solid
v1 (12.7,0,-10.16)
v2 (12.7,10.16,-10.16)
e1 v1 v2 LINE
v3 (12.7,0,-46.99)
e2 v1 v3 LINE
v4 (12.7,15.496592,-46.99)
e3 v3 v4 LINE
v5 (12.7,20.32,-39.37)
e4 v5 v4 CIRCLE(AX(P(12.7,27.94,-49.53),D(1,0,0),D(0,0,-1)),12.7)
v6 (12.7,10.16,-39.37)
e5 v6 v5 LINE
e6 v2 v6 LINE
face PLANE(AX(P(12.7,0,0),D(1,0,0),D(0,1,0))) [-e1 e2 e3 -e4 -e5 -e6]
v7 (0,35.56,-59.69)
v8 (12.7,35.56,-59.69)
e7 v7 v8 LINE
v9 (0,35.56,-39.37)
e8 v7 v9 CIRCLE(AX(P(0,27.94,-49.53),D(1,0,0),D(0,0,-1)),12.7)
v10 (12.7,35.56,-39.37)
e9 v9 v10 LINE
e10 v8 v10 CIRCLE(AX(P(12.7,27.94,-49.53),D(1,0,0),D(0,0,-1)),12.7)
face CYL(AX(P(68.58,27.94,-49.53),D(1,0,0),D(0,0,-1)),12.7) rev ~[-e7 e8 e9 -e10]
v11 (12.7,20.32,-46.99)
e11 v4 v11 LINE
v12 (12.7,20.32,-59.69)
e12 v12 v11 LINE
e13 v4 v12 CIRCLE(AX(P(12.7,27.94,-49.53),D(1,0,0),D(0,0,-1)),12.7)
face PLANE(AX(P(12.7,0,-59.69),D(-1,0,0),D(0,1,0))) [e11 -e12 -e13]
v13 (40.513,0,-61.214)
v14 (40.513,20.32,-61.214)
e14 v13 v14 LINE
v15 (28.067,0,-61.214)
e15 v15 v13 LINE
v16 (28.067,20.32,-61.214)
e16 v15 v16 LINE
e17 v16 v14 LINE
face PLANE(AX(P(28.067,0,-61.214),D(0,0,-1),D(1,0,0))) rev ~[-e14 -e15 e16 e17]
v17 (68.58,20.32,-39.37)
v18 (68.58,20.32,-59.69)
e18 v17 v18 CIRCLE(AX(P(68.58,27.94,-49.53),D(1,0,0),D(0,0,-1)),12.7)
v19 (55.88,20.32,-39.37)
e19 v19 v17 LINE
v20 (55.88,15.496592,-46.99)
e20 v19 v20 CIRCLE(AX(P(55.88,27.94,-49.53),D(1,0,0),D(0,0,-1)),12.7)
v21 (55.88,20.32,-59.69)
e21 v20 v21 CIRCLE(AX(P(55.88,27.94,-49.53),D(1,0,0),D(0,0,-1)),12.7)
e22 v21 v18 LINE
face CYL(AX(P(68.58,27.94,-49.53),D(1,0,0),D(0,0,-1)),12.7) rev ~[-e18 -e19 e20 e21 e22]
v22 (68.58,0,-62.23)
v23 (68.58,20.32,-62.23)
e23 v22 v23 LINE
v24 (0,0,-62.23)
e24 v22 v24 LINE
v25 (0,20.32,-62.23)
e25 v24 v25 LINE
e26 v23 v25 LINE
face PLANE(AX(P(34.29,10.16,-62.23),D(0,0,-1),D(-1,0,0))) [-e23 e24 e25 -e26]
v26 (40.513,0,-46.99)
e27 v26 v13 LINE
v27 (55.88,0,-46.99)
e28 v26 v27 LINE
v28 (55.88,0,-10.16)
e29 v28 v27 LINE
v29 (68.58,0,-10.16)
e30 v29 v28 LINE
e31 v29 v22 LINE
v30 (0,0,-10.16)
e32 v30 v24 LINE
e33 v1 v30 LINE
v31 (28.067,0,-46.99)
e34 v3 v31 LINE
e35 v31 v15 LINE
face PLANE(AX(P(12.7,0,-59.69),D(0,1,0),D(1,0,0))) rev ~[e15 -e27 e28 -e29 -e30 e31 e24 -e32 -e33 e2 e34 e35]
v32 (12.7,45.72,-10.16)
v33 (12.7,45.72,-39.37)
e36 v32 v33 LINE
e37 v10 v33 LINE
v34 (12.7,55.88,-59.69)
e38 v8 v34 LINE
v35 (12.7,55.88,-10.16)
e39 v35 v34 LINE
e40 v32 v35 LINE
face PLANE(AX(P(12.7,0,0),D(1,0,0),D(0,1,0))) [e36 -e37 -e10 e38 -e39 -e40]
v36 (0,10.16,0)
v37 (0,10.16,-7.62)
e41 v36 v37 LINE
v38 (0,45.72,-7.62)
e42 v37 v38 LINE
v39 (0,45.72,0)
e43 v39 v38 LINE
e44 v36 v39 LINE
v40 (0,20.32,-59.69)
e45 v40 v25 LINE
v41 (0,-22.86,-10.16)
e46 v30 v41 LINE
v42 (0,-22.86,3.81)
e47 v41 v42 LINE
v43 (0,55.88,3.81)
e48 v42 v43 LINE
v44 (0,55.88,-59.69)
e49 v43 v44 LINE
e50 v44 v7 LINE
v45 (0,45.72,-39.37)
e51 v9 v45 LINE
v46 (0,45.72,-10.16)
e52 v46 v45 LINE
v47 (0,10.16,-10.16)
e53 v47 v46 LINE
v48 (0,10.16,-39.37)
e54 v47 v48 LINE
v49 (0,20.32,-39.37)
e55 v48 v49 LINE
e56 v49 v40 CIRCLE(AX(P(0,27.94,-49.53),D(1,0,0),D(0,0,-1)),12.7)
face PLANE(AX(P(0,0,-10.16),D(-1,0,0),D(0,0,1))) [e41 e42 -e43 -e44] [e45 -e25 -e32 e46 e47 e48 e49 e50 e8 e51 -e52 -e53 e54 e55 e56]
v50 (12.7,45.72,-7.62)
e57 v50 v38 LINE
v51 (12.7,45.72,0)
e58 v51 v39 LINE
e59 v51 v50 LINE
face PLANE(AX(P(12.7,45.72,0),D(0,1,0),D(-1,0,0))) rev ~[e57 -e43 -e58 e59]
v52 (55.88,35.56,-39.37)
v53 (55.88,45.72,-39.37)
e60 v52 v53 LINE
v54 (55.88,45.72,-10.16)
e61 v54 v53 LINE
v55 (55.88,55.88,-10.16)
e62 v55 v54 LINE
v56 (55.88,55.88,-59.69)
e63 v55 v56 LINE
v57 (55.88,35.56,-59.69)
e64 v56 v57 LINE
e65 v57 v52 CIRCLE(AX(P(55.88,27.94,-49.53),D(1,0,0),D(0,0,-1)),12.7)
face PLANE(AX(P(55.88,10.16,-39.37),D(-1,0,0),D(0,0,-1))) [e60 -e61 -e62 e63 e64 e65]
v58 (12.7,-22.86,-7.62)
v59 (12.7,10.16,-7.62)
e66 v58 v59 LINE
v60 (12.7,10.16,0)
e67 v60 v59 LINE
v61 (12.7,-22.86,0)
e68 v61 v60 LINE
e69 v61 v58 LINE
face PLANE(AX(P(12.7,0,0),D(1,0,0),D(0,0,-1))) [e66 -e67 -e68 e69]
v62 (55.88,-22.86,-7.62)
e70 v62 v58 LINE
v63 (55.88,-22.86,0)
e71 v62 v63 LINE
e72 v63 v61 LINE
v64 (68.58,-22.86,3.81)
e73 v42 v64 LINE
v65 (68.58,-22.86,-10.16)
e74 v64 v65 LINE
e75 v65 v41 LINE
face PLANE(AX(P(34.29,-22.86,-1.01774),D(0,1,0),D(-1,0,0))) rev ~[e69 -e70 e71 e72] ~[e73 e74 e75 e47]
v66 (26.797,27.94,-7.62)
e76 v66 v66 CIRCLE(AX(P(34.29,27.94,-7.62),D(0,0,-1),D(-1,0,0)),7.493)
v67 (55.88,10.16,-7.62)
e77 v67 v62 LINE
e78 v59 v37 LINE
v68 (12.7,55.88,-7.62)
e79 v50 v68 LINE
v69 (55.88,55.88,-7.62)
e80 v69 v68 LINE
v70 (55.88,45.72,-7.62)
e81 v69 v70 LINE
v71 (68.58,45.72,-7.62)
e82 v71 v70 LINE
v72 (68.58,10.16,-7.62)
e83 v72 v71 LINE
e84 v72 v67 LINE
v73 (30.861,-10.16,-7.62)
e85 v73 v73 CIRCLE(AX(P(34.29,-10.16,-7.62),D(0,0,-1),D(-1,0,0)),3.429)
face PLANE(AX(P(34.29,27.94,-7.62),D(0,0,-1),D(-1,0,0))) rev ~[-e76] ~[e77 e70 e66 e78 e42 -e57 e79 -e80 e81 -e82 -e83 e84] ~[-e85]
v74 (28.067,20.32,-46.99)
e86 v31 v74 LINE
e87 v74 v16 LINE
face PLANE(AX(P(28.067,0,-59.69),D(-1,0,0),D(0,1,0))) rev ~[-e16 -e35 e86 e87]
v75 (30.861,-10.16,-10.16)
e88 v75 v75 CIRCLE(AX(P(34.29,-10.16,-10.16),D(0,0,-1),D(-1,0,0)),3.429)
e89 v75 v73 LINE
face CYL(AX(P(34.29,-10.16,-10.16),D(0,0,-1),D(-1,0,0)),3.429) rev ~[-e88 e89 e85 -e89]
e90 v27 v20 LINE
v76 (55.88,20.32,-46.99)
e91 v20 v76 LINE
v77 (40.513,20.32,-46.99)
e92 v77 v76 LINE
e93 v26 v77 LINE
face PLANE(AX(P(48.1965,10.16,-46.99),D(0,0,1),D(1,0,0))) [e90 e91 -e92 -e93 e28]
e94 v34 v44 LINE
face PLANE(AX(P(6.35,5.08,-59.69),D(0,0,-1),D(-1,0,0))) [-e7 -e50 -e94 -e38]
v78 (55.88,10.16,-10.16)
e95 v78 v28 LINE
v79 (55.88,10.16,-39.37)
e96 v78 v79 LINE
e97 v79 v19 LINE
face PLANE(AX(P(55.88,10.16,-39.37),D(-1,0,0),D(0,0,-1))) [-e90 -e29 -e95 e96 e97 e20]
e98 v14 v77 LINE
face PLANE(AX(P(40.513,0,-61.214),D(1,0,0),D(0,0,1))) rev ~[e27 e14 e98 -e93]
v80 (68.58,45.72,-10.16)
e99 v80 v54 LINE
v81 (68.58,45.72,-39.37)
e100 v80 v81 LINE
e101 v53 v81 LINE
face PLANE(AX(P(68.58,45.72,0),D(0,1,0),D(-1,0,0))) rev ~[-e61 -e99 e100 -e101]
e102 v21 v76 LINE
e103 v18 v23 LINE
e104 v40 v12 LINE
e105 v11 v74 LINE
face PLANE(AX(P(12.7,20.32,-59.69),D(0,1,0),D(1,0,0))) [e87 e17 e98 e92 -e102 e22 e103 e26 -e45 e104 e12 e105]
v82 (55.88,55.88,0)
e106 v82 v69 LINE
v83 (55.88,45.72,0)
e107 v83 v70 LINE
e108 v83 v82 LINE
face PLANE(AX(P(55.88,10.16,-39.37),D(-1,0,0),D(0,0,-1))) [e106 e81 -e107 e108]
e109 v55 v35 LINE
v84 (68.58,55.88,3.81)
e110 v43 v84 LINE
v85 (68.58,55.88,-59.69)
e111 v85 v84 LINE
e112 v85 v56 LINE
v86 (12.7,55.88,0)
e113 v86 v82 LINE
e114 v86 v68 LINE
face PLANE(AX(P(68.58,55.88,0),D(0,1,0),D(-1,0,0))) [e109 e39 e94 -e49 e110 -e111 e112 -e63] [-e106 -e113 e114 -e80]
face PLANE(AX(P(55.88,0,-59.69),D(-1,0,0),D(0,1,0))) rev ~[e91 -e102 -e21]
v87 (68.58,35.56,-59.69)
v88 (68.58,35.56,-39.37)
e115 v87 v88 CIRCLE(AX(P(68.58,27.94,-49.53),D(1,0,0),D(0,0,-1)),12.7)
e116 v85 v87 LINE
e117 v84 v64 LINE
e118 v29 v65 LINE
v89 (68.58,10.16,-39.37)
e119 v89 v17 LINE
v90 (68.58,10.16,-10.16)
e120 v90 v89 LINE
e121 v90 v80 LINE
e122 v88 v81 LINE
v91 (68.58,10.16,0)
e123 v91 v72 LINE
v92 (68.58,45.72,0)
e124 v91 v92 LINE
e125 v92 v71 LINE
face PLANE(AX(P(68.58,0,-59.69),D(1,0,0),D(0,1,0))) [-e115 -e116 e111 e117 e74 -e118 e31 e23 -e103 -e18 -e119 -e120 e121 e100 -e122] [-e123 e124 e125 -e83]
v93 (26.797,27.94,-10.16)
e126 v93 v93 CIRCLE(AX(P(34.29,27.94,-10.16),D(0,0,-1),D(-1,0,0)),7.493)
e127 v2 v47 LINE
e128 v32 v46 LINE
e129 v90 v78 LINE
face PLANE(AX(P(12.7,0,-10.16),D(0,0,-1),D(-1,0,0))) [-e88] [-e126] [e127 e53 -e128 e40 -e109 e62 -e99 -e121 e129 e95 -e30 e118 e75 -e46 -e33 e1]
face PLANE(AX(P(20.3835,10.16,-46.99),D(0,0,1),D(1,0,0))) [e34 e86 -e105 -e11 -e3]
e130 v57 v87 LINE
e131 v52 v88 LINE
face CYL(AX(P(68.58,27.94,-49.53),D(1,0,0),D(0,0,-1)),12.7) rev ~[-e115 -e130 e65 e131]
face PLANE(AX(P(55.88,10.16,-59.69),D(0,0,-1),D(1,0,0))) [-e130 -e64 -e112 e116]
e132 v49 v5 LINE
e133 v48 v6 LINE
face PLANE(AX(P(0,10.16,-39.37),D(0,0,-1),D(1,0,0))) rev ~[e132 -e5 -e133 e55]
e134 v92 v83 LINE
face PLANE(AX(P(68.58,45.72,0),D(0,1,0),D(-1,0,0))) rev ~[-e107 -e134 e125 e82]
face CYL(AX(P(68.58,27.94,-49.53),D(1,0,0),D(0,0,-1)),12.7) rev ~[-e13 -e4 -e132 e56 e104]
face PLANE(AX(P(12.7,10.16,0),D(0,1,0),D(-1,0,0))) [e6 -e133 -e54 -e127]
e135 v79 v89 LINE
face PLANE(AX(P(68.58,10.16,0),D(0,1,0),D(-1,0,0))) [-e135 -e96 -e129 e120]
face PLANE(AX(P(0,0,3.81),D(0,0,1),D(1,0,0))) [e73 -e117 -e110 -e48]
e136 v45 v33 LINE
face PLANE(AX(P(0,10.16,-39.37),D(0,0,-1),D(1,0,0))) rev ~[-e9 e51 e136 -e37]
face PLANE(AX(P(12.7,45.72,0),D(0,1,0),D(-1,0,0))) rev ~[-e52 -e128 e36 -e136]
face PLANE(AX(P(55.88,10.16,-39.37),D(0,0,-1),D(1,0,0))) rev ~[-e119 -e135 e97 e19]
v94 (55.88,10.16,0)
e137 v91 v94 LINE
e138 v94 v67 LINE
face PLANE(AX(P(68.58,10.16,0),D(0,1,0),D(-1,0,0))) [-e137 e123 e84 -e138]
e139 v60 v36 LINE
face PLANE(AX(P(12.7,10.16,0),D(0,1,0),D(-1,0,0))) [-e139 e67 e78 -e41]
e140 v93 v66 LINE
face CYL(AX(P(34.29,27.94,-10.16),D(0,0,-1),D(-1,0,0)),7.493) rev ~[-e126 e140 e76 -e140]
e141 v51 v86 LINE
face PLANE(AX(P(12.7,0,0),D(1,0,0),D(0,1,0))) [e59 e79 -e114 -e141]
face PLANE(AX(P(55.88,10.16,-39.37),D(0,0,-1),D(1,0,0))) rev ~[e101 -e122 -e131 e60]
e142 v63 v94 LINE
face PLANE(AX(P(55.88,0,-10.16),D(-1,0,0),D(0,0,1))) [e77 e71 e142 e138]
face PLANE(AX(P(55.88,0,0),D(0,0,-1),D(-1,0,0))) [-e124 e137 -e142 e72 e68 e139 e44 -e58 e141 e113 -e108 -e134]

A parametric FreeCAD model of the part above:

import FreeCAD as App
import Part
import Sketcher
from FreeCAD import Vector
Q = App.Units.Quantity


def add_polygon(sketch, points):
    """Adds a closed chain of lines whose ends are joined by coincident constraints."""
    first, n = sketch.GeometryCount, len(points)
    for a, b in zip(points, points[1:] + points[:1]):
        sketch.addGeometry(Part.LineSegment(App.Vector(*a, 0), App.Vector(*b, 0)), False)
    for i in range(n):
        sketch.addConstraint(Sketcher.Constraint("Coincident", first + i, 2, first + (i + 1) % n, 1))

doc = App.newDocument("Part")
body = doc.addObject("PartDesign::Body", "Body")

# Sketch on XY plane
sketch1 = body.newObject("Sketcher::SketchObject", "Sketch")
sketch1.AttachmentSupport = (doc.getObject("XY_Plane"), [""])
sketch1.MapMode = "FlatFace"
add_polygon(sketch1, [(0, 56), (0, 0), (69, 0), (69, 56)])  # lines 0-3
sketch1.addConstraint(Sketcher.Constraint("Vertical", 0))
sketch1.addConstraint(Sketcher.Constraint("Horizontal", 1))
sketch1.addConstraint(Sketcher.Constraint("Vertical", 2))
sketch1.addConstraint(Sketcher.Constraint("Horizontal", 3))
sketch1.addConstraint(Sketcher.Constraint("Coincident", 0, 2, -1, 1))
sketch1.addConstraint(Sketcher.Constraint("DistanceX", 1, 1, 1, 2, Q("2.7 in")))
sketch1.addConstraint(Sketcher.Constraint("DistanceY", 0, 2, 0, 1, Q("2.2 in")))
pad1 = body.newObject("PartDesign::Pad", "Pad")
pad1.Profile = sketch1
pad1.Length = Q("0.15 in")

# Sketch on XY plane
sketch2 = body.newObject("Sketcher::SketchObject", "Sketch001")
sketch2.AttachmentSupport = (doc.getObject("XY_Plane"), [""])
sketch2.MapMode = "FlatFace"
add_polygon(sketch2, [(69, 56), (69, 46), (56, 46), (56, 56)])  # lines 0-3
add_polygon(sketch2, [(13, 56), (13, 46), (0, 46), (0, 56)])  # lines 4-7
add_polygon(sketch2, [(13, 10), (13, 0), (0, 0), (0, 10)])  # lines 8-11
add_polygon(sketch2, [(69, 10), (69, 0), (56, 0), (56, 10)])  # lines 12-15
sketch2.addConstraint(Sketcher.Constraint("Vertical", 0))
sketch2.addConstraint(Sketcher.Constraint("Horizontal", 1))
sketch2.addConstraint(Sketcher.Constraint("Vertical", 2))
sketch2.addConstraint(Sketcher.Constraint("Horizontal", 3))
sketch2.addConstraint(Sketcher.Constraint("Vertical", 4))
sketch2.addConstraint(Sketcher.Constraint("Horizontal", 5))
sketch2.addConstraint(Sketcher.Constraint("Vertical", 6))
sketch2.addConstraint(Sketcher.Constraint("Horizontal", 7))
sketch2.addConstraint(Sketcher.Constraint("Vertical", 8))
sketch2.addConstraint(Sketcher.Constraint("Horizontal", 9))
sketch2.addConstraint(Sketcher.Constraint("Vertical", 10))
sketch2.addConstraint(Sketcher.Constraint("Horizontal", 11))
sketch2.addConstraint(Sketcher.Constraint("Vertical", 12))
sketch2.addConstraint(Sketcher.Constraint("Horizontal", 13))
sketch2.addConstraint(Sketcher.Constraint("Vertical", 14))
sketch2.addConstraint(Sketcher.Constraint("Horizontal", 15))
sketch2.addConstraint(Sketcher.Constraint("Coincident", 9, 2, -1, 1))
sketch2.addConstraint(Sketcher.Constraint("PointOnObject", 5, 2, -2))
sketch2.addConstraint(Sketcher.Constraint("PointOnObject", 12, 2, -1))
sketch2.addConstraint(Sketcher.Constraint("Horizontal", 1, 2, 4, 2))
sketch2.addConstraint(Sketcher.Constraint("Horizontal", 3, 2, 6, 2))
sketch2.addConstraint(Sketcher.Constraint("Horizontal", 11, 2, 14, 2))
sketch2.addConstraint(Sketcher.Constraint("Vertical", 7, 2, 8, 2))
sketch2.addConstraint(Sketcher.Constraint("Vertical", 3, 2, 12, 2))
sketch2.addConstraint(Sketcher.Constraint("Vertical", 2, 2, 13, 2))
sketch2.addConstraint(Sketcher.Constraint("Equal", 3, 5))
sketch2.addConstraint(Sketcher.Constraint("Equal", 6, 8))
sketch2.addConstraint(Sketcher.Constraint("DistanceX", 1, 2, 1, 1, Q("0.5 in")))
sketch2.addConstraint(Sketcher.Constraint("DistanceY", 0, 2, 0, 1, Q("0.4 in")))
sketch2.addConstraint(Sketcher.Constraint("DistanceX", -1, 1, 0, 2, Q("2.7 in")))
sketch2.addConstraint(Sketcher.Constraint("DistanceY", -1, 1, 0, 2, Q("1.8 in")))
pad2 = body.newObject("PartDesign::Pad", "Pad001")
pad2.Profile = sketch2
pad2.Length = Q("2.35 in")
pad2.Reversed = True

# Sketch on XZ plane
sketch3 = body.newObject("Sketcher::SketchObject", "Sketch002")
sketch3.AttachmentSupport = (doc.getObject("XZ_Plane"), [""])
sketch3.MapMode = "FlatFace"
sketch3.AttachmentOffset = App.Placement(Vector(0, 0, -0.4 * 25.4), App.Rotation())
add_polygon(sketch3, [(56, -60), (56, -39), (69, -39), (69, -60)])  # lines 0-3
add_polygon(sketch3, [(0, -60), (0, -39), (13, -39), (13, -60)])  # lines 4-7
sketch3.addConstraint(Sketcher.Constraint("Vertical", 0))
sketch3.addConstraint(Sketcher.Constraint("Horizontal", 1))
sketch3.addConstraint(Sketcher.Constraint("Vertical", 2))
sketch3.addConstraint(Sketcher.Constraint("Horizontal", 3))
sketch3.addConstraint(Sketcher.Constraint("Vertical", 4))
sketch3.addConstraint(Sketcher.Constraint("Horizontal", 5))
sketch3.addConstraint(Sketcher.Constraint("Vertical", 6))
sketch3.addConstraint(Sketcher.Constraint("Horizontal", 7))
sketch3.addConstraint(Sketcher.Constraint("PointOnObject", 4, 2, -2))
sketch3.addConstraint(Sketcher.Constraint("Horizontal", 1, 2, 4, 2))
sketch3.addConstraint(Sketcher.Constraint("Horizontal", 3, 2, 6, 2))
sketch3.addConstraint(Sketcher.Constraint("Equal", 3, 5))
sketch3.addConstraint(Sketcher.Constraint("DistanceX", 1, 1, 1, 2, Q("0.5 in")))
sketch3.addConstraint(Sketcher.Constraint("DistanceY", 0, 1, 0, 2, Q("0.8 in")))
sketch3.addConstraint(Sketcher.Constraint("DistanceX", -1, 1, 0, 2, Q("2.2 in")))
sketch3.addConstraint(Sketcher.Constraint("DistanceY", 0, 2, -1, 1, Q("1.55 in")))
pad3 = body.newObject("PartDesign::Pad", "Pad002")
pad3.Profile = sketch3
pad3.Length = Q("1.4 in")
pad3.Reversed = True

# Sketch on YZ plane
sketch4 = body.newObject("Sketcher::SketchObject", "Sketch003")
sketch4.AttachmentSupport = (doc.getObject("YZ_Plane"), [""])
sketch4.MapMode = "FlatFace"
sketch4.AttachmentOffset = App.Placement(Vector(0, 0, 2.7 * 25.4), App.Rotation())
sketch4.addGeometry(Part.Circle(Vector(28, -50, 0), Vector(0, 0, 1), 13), False)
sketch4.addConstraint(Sketcher.Constraint("Diameter", 0, Q("1 in")))
sketch4.addConstraint(Sketcher.Constraint("DistanceX", -1, 1, 0, 3, Q("1.1 in")))
sketch4.addConstraint(Sketcher.Constraint("DistanceY", 0, 3, -1, 1, Q("1.95 in")))
pocket1 = body.newObject("PartDesign::Pocket", "Pocket")
pocket1.Profile = sketch4
pocket1.Type = "ThroughAll"

# Sketch on XY plane
sketch5 = body.newObject("Sketcher::SketchObject", "Sketch004")
sketch5.AttachmentSupport = (doc.getObject("XY_Plane"), [""])
sketch5.MapMode = "FlatFace"
sketch5.AttachmentOffset = App.Placement(Vector(0, 0, -0.3 * 25.4), App.Rotation())
add_polygon(sketch5, [(69, 56), (69, 0), (56, 0), (56, -23), (13, -23), (13, 0), (0, 0), (0, 56)])  # lines 0-7
sketch5.addConstraint(Sketcher.Constraint("Vertical", 0))
sketch5.addConstraint(Sketcher.Constraint("Horizontal", 1))
sketch5.addConstraint(Sketcher.Constraint("Vertical", 2))
sketch5.addConstraint(Sketcher.Constraint("Horizontal", 3))
sketch5.addConstraint(Sketcher.Constraint("Vertical", 4))
sketch5.addConstraint(Sketcher.Constraint("Horizontal", 5))
sketch5.addConstraint(Sketcher.Constraint("Vertical", 6))
sketch5.addConstraint(Sketcher.Constraint("Horizontal", 7))
sketch5.addConstraint(Sketcher.Constraint("Coincident", 5, 2, -1, 1))
sketch5.addConstraint(Sketcher.Constraint("PointOnObject", 0, 2, -1))
sketch5.addConstraint(Sketcher.Constraint("Equal", 1, 5))
sketch5.addConstraint(Sketcher.Constraint("DistanceX", 1, 2, 1, 1, Q("0.5 in")))
sketch5.addConstraint(Sketcher.Constraint("DistanceX", 3, 2, 3, 1, Q("1.7 in")))
sketch5.addConstraint(Sketcher.Constraint("DistanceY", 0, 2, 0, 1, Q("2.2 in")))
sketch5.addConstraint(Sketcher.Constraint("DistanceY", 2, 2, 2, 1, Q("0.9 in")))
pad4 = body.newObject("PartDesign::Pad", "Pad003")
pad4.Profile = sketch5
pad4.Length = Q("0.1 in")
pad4.Reversed = True

# Sketch on XY plane
sketch6 = body.newObject("Sketcher::SketchObject", "Sketch005")
sketch6.AttachmentSupport = (doc.getObject("XY_Plane"), [""])
sketch6.MapMode = "FlatFace"
sketch6.AttachmentOffset = App.Placement(Vector(0, 0, -0.4 * 25.4), App.Rotation())
sketch6.addGeometry(Part.Circle(Vector(34.3, -10.2, 0), Vector(0, 0, 1), 3.4), False)
sketch6.addGeometry(Part.Circle(Vector(34.3, 27.9, 0), Vector(0, 0, 1), 7.5), False)
sketch6.addConstraint(Sketcher.Constraint("Vertical", 0, 3, 1, 3))
sketch6.addConstraint(Sketcher.Constraint("Diameter", 0, Q("0.27 in")))
sketch6.addConstraint(Sketcher.Constraint("Diameter", 1, Q("0.59 in")))
sketch6.addConstraint(Sketcher.Constraint("DistanceY", 0, 3, -1, 1, Q("0.4 in")))
sketch6.addConstraint(Sketcher.Constraint("DistanceY", -1, 1, 1, 3, Q("1.1 in")))
sketch6.addConstraint(Sketcher.Constraint("DistanceX", -1, 1, 0, 3, Q("1.35 in")))
pocket2 = body.newObject("PartDesign::Pocket", "Pocket001")
pocket2.Profile = sketch6
pocket2.Length = Q("0.1 in")
pocket2.Reversed = True

# Sketch on XY plane
sketch7 = body.newObject("Sketcher::SketchObject", "Sketch006")
sketch7.AttachmentSupport = (doc.getObject("XY_Plane"), [""])
sketch7.MapMode = "FlatFace"
sketch7.AttachmentOffset = App.Placement(Vector(0, 0, -2.35 * 25.4), App.Rotation())
add_polygon(sketch7, [(69, 20), (69, 0), (0, 0), (0, 20)])  # lines 0-3
sketch7.addConstraint(Sketcher.Constraint("Vertical", 0))
sketch7.addConstraint(Sketcher.Constraint("Horizontal", 1))
sketch7.addConstraint(Sketcher.Constraint("Vertical", 2))
sketch7.addConstraint(Sketcher.Constraint("Horizontal", 3))
sketch7.addConstraint(Sketcher.Constraint("Coincident", 1, 2, -1, 1))
sketch7.addConstraint(Sketcher.Constraint("DistanceX", 1, 2, 1, 1, Q("2.7 in")))
sketch7.addConstraint(Sketcher.Constraint("DistanceY", 0, 2, 0, 1, Q("0.8 in")))
pad5 = body.newObject("PartDesign::Pad", "Pad004")
pad5.Profile = sketch7
pad5.Length = Q("0.1 in")
pad5.Reversed = True

# Sketch on XZ plane
sketch8 = body.newObject("Sketcher::SketchObject", "Sketch007")
sketch8.AttachmentSupport = (doc.getObject("XZ_Plane"), [""])
sketch8.MapMode = "FlatFace"
add_polygon(sketch8, [(28.1, -58.2), (28.1, -61.2), (40.5, -61.2), (40.5, -58.2)])  # lines 0-3
sketch8.addConstraint(Sketcher.Constraint("Vertical", 0))
sketch8.addConstraint(Sketcher.Constraint("Horizontal", 1))
sketch8.addConstraint(Sketcher.Constraint("Vertical", 2))
sketch8.addConstraint(Sketcher.Constraint("Horizontal", 3))
sketch8.addConstraint(Sketcher.Constraint("DistanceX", 1, 1, 1, 2, Q("0.49 in")))
sketch8.addConstraint(Sketcher.Constraint("DistanceY", 0, 2, 0, 1, Q("0.12 in")))
sketch8.addConstraint(Sketcher.Constraint("DistanceY", 0, 2, -1, 1, Q("2.41 in")))
sketch8.addConstraint(Sketcher.Constraint("DistanceX", -1, 1, 0, 2, Q("1.105 in")))
pocket3 = body.newObject("PartDesign::Pocket", "Pocket002")
pocket3.Profile = sketch8
pocket3.Type = "UpToFirst"

# Sketch on XY plane
sketch9 = body.newObject("Sketcher::SketchObject", "Sketch008")
sketch9.AttachmentSupport = (doc.getObject("XY_Plane"), [""])
sketch9.MapMode = "FlatFace"
sketch9.AttachmentOffset = App.Placement(Vector(0, 0, -2.35 * 25.4), App.Rotation())
add_polygon(sketch9, [(13, 20), (13, 0), (28, 0), (28, 20)])  # lines 0-3
add_polygon(sketch9, [(41, 20), (41, 0), (56, 0), (56, 20)])  # lines 4-7
sketch9.addConstraint(Sketcher.Constraint("Vertical", 0))
sketch9.addConstraint(Sketcher.Constraint("Horizontal", 1))
sketch9.addConstraint(Sketcher.Constraint("Vertical", 2))
sketch9.addConstraint(Sketcher.Constraint("Horizontal", 3))
sketch9.addConstraint(Sketcher.Constraint("Vertical", 4))
sketch9.addConstraint(Sketcher.Constraint("Horizontal", 5))
sketch9.addConstraint(Sketcher.Constraint("Vertical", 6))
sketch9.addConstraint(Sketcher.Constraint("Horizontal", 7))
sketch9.addConstraint(Sketcher.Constraint("PointOnObject", 0, 2, -1))
sketch9.addConstraint(Sketcher.Constraint("PointOnObject", 4, 2, -1))
sketch9.addConstraint(Sketcher.Constraint("Horizontal", 3, 2, 6, 2))
sketch9.addConstraint(Sketcher.Constraint("Equal", 3, 5))
sketch9.addConstraint(Sketcher.Constraint("DistanceY", 0, 2, 0, 1, Q("0.8 in")))
sketch9.addConstraint(Sketcher.Constraint("DistanceX", -1, 1, 0, 2, Q("0.5 in")))
sketch9.addConstraint(Sketcher.Constraint("DistanceX", -1, 1, 5, 2, Q("2.2 in")))
sketch9.addConstraint(Sketcher.Constraint("DistanceX", 1, 1, 1, 2, Q("0.605 in")))
pad6 = body.newObject("PartDesign::Pad", "Pad005")
pad6.Profile = sketch9
pad6.Length = Q("0.5 in")

# Sketch on XZ plane
sketch10 = body.newObject("Sketcher::SketchObject", "Sketch009")
sketch10.AttachmentSupport = (doc.getObject("XZ_Plane"), [""])
sketch10.MapMode = "FlatFace"
add_polygon(sketch10, [(0, -10), (13, -10), (13, 0), (56, 0), (56, -10), (69, -10), (69, 4), (0, 4)])  # lines 0-7
sketch10.addConstraint(Sketcher.Constraint("Horizontal", 0))
sketch10.addConstraint(Sketcher.Constraint("Vertical", 1))
sketch10.addConstraint(Sketcher.Constraint("Horizontal", 2))
sketch10.addConstraint(Sketcher.Constraint("Vertical", 3))
sketch10.addConstraint(Sketcher.Constraint("Horizontal", 4))
sketch10.addConstraint(Sketcher.Constraint("Vertical", 5))
sketch10.addConstraint(Sketcher.Constraint("Horizontal", 6))
sketch10.addConstraint(Sketcher.Constraint("Vertical", 7))
sketch10.addConstraint(Sketcher.Constraint("PointOnObject", 1, 2, -1))
sketch10.addConstraint(Sketcher.Constraint("PointOnObject", 6, 2, -2))
sketch10.addConstraint(Sketcher.Constraint("Horizontal", 0, 2, 3, 2))
sketch10.addConstraint(Sketcher.Constraint("Equal", 0, 4))
sketch10.addConstraint(Sketcher.Constraint("DistanceX", 0, 1, 0, 2, Q("0.5 in")))
sketch10.addConstraint(Sketcher.Constraint("DistanceX", 2, 1, 2, 2, Q("1.7 in")))
sketch10.addConstraint(Sketcher.Constraint("DistanceY", 1, 1, 1, 2, Q("0.4 in")))
sketch10.addConstraint(Sketcher.Constraint("DistanceY", 5, 1, 5, 2, Q("0.55 in")))
pad7 = body.newObject("PartDesign::Pad", "Pad006")
pad7.Profile = sketch10
pad7.Length = Q("0.9 in")

doc.recompute()
